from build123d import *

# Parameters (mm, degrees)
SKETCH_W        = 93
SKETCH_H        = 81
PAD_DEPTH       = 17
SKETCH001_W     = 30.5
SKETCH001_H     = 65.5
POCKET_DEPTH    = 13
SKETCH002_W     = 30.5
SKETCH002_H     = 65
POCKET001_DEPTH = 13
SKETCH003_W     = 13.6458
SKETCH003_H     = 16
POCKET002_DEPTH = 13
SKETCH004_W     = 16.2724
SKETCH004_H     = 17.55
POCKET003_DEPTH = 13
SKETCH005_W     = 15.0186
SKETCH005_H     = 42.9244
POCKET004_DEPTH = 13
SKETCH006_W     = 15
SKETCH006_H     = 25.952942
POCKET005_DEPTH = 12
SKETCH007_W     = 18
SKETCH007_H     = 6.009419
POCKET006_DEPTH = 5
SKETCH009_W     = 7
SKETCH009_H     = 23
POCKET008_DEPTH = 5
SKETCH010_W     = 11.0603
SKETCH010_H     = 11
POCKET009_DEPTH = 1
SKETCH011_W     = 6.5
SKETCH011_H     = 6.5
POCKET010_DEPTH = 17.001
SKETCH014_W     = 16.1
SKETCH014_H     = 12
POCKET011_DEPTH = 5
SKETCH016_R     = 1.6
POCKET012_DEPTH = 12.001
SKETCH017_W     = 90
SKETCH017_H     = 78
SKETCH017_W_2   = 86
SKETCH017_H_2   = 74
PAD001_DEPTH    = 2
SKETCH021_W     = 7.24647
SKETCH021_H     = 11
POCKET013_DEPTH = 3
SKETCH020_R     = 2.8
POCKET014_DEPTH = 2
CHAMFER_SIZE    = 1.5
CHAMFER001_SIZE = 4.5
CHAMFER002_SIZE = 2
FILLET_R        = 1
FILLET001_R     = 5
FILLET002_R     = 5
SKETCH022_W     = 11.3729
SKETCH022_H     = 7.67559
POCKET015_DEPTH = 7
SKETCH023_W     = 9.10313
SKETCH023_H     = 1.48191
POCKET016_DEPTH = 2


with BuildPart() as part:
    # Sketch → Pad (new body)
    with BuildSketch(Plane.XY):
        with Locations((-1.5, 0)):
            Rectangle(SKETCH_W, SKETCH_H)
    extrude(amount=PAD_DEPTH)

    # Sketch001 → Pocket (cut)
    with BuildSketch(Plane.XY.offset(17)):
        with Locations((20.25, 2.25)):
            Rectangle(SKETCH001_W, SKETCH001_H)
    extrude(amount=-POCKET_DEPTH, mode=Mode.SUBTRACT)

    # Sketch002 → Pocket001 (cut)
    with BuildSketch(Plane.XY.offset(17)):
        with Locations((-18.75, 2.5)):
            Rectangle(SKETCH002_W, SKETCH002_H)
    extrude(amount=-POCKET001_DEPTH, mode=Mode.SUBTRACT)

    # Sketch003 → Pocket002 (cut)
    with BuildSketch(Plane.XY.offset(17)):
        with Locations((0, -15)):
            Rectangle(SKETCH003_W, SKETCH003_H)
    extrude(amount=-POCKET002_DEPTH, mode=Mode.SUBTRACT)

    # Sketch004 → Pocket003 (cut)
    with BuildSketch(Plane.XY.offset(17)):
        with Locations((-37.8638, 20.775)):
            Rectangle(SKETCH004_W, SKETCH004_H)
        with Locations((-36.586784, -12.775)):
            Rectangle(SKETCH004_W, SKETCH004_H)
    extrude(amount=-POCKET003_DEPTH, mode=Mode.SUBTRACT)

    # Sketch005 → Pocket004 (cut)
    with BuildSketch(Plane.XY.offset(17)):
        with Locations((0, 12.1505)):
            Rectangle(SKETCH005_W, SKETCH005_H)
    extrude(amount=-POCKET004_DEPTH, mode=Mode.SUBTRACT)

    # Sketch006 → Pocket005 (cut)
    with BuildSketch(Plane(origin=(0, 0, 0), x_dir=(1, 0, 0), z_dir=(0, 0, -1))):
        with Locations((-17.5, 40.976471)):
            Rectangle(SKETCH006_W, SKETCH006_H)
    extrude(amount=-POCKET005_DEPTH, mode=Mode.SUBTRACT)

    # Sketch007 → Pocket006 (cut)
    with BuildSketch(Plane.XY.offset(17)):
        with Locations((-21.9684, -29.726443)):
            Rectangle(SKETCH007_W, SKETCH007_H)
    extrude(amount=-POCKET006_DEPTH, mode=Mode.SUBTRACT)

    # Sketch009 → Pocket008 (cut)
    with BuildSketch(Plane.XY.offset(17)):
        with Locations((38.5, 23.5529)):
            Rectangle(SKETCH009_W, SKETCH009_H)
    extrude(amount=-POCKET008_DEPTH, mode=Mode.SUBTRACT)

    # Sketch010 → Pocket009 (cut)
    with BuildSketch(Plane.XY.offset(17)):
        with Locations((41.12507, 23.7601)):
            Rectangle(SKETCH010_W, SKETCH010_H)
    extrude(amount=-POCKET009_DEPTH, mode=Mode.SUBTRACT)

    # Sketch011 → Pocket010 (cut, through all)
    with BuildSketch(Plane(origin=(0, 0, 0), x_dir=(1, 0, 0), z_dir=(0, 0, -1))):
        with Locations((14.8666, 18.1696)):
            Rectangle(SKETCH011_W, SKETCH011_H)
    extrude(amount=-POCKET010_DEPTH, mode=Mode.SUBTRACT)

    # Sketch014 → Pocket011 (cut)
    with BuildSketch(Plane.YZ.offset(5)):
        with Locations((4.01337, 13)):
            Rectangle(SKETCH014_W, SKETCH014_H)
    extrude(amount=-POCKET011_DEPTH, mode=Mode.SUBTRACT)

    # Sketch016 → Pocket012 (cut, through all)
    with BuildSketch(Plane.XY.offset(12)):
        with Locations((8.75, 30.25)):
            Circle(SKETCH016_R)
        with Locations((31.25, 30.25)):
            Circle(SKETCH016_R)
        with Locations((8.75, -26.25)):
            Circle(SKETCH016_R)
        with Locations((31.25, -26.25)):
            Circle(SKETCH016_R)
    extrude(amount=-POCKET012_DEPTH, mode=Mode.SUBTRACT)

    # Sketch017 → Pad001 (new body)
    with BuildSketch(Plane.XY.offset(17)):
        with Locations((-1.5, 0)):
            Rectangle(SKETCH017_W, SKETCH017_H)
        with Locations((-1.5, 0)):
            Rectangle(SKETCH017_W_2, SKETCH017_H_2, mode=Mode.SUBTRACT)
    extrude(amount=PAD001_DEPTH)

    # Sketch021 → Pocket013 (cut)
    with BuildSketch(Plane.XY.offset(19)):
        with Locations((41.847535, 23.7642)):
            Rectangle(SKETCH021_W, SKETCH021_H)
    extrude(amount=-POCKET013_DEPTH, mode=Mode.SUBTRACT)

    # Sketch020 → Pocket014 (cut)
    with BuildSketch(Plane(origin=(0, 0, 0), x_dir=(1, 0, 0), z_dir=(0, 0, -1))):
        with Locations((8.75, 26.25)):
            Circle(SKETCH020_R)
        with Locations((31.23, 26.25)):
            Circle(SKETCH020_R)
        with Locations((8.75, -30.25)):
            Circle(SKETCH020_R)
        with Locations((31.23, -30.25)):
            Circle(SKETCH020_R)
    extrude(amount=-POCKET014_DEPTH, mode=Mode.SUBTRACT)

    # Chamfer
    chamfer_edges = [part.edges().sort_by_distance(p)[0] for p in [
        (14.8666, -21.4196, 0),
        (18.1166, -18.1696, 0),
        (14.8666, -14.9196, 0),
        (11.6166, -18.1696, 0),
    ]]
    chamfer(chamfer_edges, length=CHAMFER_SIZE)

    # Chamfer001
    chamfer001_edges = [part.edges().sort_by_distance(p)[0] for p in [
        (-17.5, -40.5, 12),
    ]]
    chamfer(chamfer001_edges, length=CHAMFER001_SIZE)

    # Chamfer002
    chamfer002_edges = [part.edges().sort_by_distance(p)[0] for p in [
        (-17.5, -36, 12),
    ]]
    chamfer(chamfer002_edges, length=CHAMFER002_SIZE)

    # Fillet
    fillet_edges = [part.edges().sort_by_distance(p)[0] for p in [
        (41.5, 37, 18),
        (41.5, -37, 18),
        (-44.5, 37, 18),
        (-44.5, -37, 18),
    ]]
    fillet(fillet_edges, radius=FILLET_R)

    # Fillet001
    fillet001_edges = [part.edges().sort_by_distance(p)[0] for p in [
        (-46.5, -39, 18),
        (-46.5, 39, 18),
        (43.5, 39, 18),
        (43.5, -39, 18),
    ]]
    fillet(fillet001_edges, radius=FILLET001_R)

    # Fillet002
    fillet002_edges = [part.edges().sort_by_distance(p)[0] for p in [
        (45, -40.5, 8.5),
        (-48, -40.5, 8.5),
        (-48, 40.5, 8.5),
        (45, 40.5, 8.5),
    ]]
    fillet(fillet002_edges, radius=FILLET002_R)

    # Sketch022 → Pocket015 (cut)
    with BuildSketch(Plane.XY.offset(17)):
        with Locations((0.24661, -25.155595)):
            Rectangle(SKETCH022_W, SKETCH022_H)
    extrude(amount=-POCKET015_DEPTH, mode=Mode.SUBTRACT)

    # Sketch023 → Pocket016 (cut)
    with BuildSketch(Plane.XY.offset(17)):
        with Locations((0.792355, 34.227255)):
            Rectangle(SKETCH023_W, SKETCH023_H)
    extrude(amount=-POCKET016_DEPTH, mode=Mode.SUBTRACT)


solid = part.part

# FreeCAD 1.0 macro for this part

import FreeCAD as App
import Part
import Sketcher
from FreeCAD import Vector
Q = App.Units.Quantity


def edges_at(feature, points):
    """Names of the edges that pass closest to the given points."""
    edges = feature.Shape.Edges
    near = lambda p: min(range(len(edges)), key=lambda i: edges[i].distToShape(Part.Vertex(*p))[0])
    return sorted({f"Edge{near(p) + 1}" for p in points})

doc = App.newDocument("Part")
body = doc.addObject("PartDesign::Body", "Body")

sketch1 = doc.addObject("Sketcher::SketchObject", "Sketch")
body.addObject(sketch1)
sketch1.AttachmentSupport = (doc.XY_Plane, [""])
sketch1.MapMode = "FlatFace"
sketch1.addGeometry(Part.LineSegment(Vector(-48, 40, 0), Vector(-48, -40, 0)), False)
sketch1.addGeometry(Part.LineSegment(Vector(-48, -40, 0), Vector(45, -40, 0)), False)
sketch1.addGeometry(Part.LineSegment(Vector(45, -40, 0), Vector(45, 40, 0)), False)
sketch1.addGeometry(Part.LineSegment(Vector(45, 40, 0), Vector(-48, 40, 0)), False)
sketch1.addConstraint(Sketcher.Constraint("Coincident", 0, 2, 1, 1))
sketch1.addConstraint(Sketcher.Constraint("Coincident", 1, 2, 2, 1))
sketch1.addConstraint(Sketcher.Constraint("Coincident", 2, 2, 3, 1))
sketch1.addConstraint(Sketcher.Constraint("Coincident", 3, 2, 0, 1))
sketch1.addConstraint(Sketcher.Constraint("Vertical", 0))
sketch1.addConstraint(Sketcher.Constraint("Horizontal", 1))
sketch1.addConstraint(Sketcher.Constraint("Vertical", 2))
sketch1.addConstraint(Sketcher.Constraint("Horizontal", 3))
sketch1.addConstraint(Sketcher.Constraint("DistanceX", 1, 1, 1, 2, Q("93 mm")))
sketch1.addConstraint(Sketcher.Constraint("DistanceY", 0, 2, 0, 1, Q("81 mm")))
sketch1.addConstraint(Sketcher.Constraint("DistanceX", 0, 2, -1, 1, Q("48 mm")))
sketch1.addConstraint(Sketcher.Constraint("DistanceY", 0, 2, -1, 1, Q("40.5 mm")))
pad1 = doc.addObject("PartDesign::Pad", "Pad")
body.addObject(pad1)
pad1.Profile = sketch1
pad1.Length = 17

sketch2 = doc.addObject("Sketcher::SketchObject", "Sketch001")
body.addObject(sketch2)
sketch2.AttachmentSupport = (doc.XY_Plane, [""])
sketch2.MapMode = "FlatFace"
sketch2.AttachmentOffset = App.Placement(Vector(0, 0, 17), App.Rotation())
sketch2.addGeometry(Part.LineSegment(Vector(5, 35, 0), Vector(5, -30, 0)), False)
sketch2.addGeometry(Part.LineSegment(Vector(5, -30, 0), Vector(36, -30, 0)), False)
sketch2.addGeometry(Part.LineSegment(Vector(36, -30, 0), Vector(36, 35, 0)), False)
sketch2.addGeometry(Part.LineSegment(Vector(36, 35, 0), Vector(5, 35, 0)), False)
sketch2.addConstraint(Sketcher.Constraint("Coincident", 0, 2, 1, 1))
sketch2.addConstraint(Sketcher.Constraint("Coincident", 1, 2, 2, 1))
sketch2.addConstraint(Sketcher.Constraint("Coincident", 2, 2, 3, 1))
sketch2.addConstraint(Sketcher.Constraint("Coincident", 3, 2, 0, 1))
sketch2.addConstraint(Sketcher.Constraint("Vertical", 0))
sketch2.addConstraint(Sketcher.Constraint("Horizontal", 1))
sketch2.addConstraint(Sketcher.Constraint("Vertical", 2))
sketch2.addConstraint(Sketcher.Constraint("Horizontal", 3))
sketch2.addConstraint(Sketcher.Constraint("DistanceX", 1, 1, 1, 2, Q("30.5 mm")))
sketch2.addConstraint(Sketcher.Constraint("DistanceY", 0, 2, 0, 1, Q("65.5 mm")))
sketch2.addConstraint(Sketcher.Constraint("DistanceX", -1, 1, 0, 2, Q("5 mm")))
sketch2.addConstraint(Sketcher.Constraint("DistanceY", -1, 1, 2, 2, Q("35 mm")))
pocket1 = doc.addObject("PartDesign::Pocket", "Pocket")
body.addObject(pocket1)
pocket1.Profile = sketch2
pocket1.Length = 13

sketch3 = doc.addObject("Sketcher::SketchObject", "Sketch002")
body.addObject(sketch3)
sketch3.AttachmentSupport = (doc.XY_Plane, [""])
sketch3.MapMode = "FlatFace"
sketch3.AttachmentOffset = App.Placement(Vector(0, 0, 17), App.Rotation())
sketch3.addGeometry(Part.LineSegment(Vector(-34, 35, 0), Vector(-34, -30, 0)), False)
sketch3.addGeometry(Part.LineSegment(Vector(-34, -30, 0), Vector(-4, -30, 0)), False)
sketch3.addGeometry(Part.LineSegment(Vector(-4, -30, 0), Vector(-4, 35, 0)), False)
sketch3.addGeometry(Part.LineSegment(Vector(-4, 35, 0), Vector(-34, 35, 0)), False)
sketch3.addConstraint(Sketcher.Constraint("Coincident", 0, 2, 1, 1))
sketch3.addConstraint(Sketcher.Constraint("Coincident", 1, 2, 2, 1))
sketch3.addConstraint(Sketcher.Constraint("Coincident", 2, 2, 3, 1))
sketch3.addConstraint(Sketcher.Constraint("Coincident", 3, 2, 0, 1))
sketch3.addConstraint(Sketcher.Constraint("Vertical", 0))
sketch3.addConstraint(Sketcher.Constraint("Horizontal", 1))
sketch3.addConstraint(Sketcher.Constraint("Vertical", 2))
sketch3.addConstraint(Sketcher.Constraint("Horizontal", 3))
sketch3.addConstraint(Sketcher.Constraint("DistanceY", 0, 2, 0, 1, Q("65 mm")))
sketch3.addConstraint(Sketcher.Constraint("DistanceX", 1, 1, 1, 2, Q("30.5 mm")))
sketch3.addConstraint(Sketcher.Constraint("DistanceX", 0, 2, -1, 1, Q("34 mm")))
sketch3.addConstraint(Sketcher.Constraint("DistanceY", 0, 2, -1, 1, Q("30 mm")))
pocket2 = doc.addObject("PartDesign::Pocket", "Pocket001")
body.addObject(pocket2)
pocket2.Profile = sketch3
pocket2.Length = 13

sketch4 = doc.addObject("Sketcher::SketchObject", "Sketch003")
body.addObject(sketch4)
sketch4.AttachmentSupport = (doc.XY_Plane, [""])
sketch4.MapMode = "FlatFace"
sketch4.AttachmentOffset = App.Placement(Vector(0, 0, 17), App.Rotation())
sketch4.addGeometry(Part.LineSegment(Vector(-7, -7, 0), Vector(-7, -23, 0)), False)
sketch4.addGeometry(Part.LineSegment(Vector(-7, -23, 0), Vector(7, -23, 0)), False)
sketch4.addGeometry(Part.LineSegment(Vector(7, -23, 0), Vector(7, -7, 0)), False)
sketch4.addGeometry(Part.LineSegment(Vector(7, -7, 0), Vector(-7, -7, 0)), False)
sketch4.addConstraint(Sketcher.Constraint("Coincident", 0, 2, 1, 1))
sketch4.addConstraint(Sketcher.Constraint("Coincident", 1, 2, 2, 1))
sketch4.addConstraint(Sketcher.Constraint("Coincident", 2, 2, 3, 1))
sketch4.addConstraint(Sketcher.Constraint("Coincident", 3, 2, 0, 1))
sketch4.addConstraint(Sketcher.Constraint("Vertical", 0))
sketch4.addConstraint(Sketcher.Constraint("Horizontal", 1))
sketch4.addConstraint(Sketcher.Constraint("Vertical", 2))
sketch4.addConstraint(Sketcher.Constraint("Horizontal", 3))
sketch4.addConstraint(Sketcher.Constraint("DistanceY", 0, 2, 0, 1, Q("16 mm")))
sketch4.addConstraint(Sketcher.Constraint("DistanceY", 0, 2, -1, 1, Q("23 mm")))
sketch4.addConstraint(Sketcher.Constraint("DistanceX", 1, 1, 1, 2, Q("13.6458 mm")))
sketch4.addConstraint(Sketcher.Constraint("DistanceX", 0, 2, -1, 1, Q("6.8229 mm")))
pocket3 = doc.addObject("PartDesign::Pocket", "Pocket002")
body.addObject(pocket3)
pocket3.Profile = sketch4
pocket3.Length = 13

sketch5 = doc.addObject("Sketcher::SketchObject", "Sketch004")
body.addObject(sketch5)
sketch5.AttachmentSupport = (doc.XY_Plane, [""])
sketch5.MapMode = "FlatFace"
sketch5.AttachmentOffset = App.Placement(Vector(0, 0, 17), App.Rotation())
sketch5.addGeometry(Part.LineSegment(Vector(-46, 30, 0), Vector(-46, 12, 0)), False)
sketch5.addGeometry(Part.LineSegment(Vector(-46, 12, 0), Vector(-30, 12, 0)), False)
sketch5.addGeometry(Part.LineSegment(Vector(-30, 12, 0), Vector(-30, 30, 0)), False)
sketch5.addGeometry(Part.LineSegment(Vector(-30, 30, 0), Vector(-46, 30, 0)), False)
sketch5.addGeometry(Part.LineSegment(Vector(-45, -4, 0), Vector(-45, -22, 0)), False)
sketch5.addGeometry(Part.LineSegment(Vector(-45, -22, 0), Vector(-28, -22, 0)), False)
sketch5.addGeometry(Part.LineSegment(Vector(-28, -22, 0), Vector(-28, -4, 0)), False)
sketch5.addGeometry(Part.LineSegment(Vector(-28, -4, 0), Vector(-45, -4, 0)), False)
sketch5.addConstraint(Sketcher.Constraint("Coincident", 0, 2, 1, 1))
sketch5.addConstraint(Sketcher.Constraint("Coincident", 1, 2, 2, 1))
sketch5.addConstraint(Sketcher.Constraint("Coincident", 2, 2, 3, 1))
sketch5.addConstraint(Sketcher.Constraint("Coincident", 3, 2, 0, 1))
sketch5.addConstraint(Sketcher.Constraint("Coincident", 4, 2, 5, 1))
sketch5.addConstraint(Sketcher.Constraint("Coincident", 5, 2, 6, 1))
sketch5.addConstraint(Sketcher.Constraint("Coincident", 6, 2, 7, 1))
sketch5.addConstraint(Sketcher.Constraint("Coincident", 7, 2, 4, 1))
sketch5.addConstraint(Sketcher.Constraint("Vertical", 0))
sketch5.addConstraint(Sketcher.Constraint("Horizontal", 1))
sketch5.addConstraint(Sketcher.Constraint("Vertical", 2))
sketch5.addConstraint(Sketcher.Constraint("Horizontal", 3))
sketch5.addConstraint(Sketcher.Constraint("Vertical", 4))
sketch5.addConstraint(Sketcher.Constraint("Horizontal", 5))
sketch5.addConstraint(Sketcher.Constraint("Vertical", 6))
sketch5.addConstraint(Sketcher.Constraint("Horizontal", 7))
sketch5.addConstraint(Sketcher.Constraint("Equal", 3, 5))
sketch5.addConstraint(Sketcher.Constraint("Equal", 2, 4))
sketch5.addConstraint(Sketcher.Constraint("DistanceX", 0, 2, -1, 1, Q("46 mm")))
sketch5.addConstraint(Sketcher.Constraint("DistanceY", -1, 1, 0, 2, Q("12 mm")))
sketch5.addConstraint(Sketcher.Constraint("DistanceY", 6, 2, -1, 1, Q("4 mm")))
sketch5.addConstraint(Sketcher.Constraint("DistanceY", 0, 2, 0, 1, Q("17.55 mm")))
sketch5.addConstraint(Sketcher.Constraint("DistanceX", 1, 1, 1, 2, Q("16.2724 mm")))
sketch5.addConstraint(Sketcher.Constraint("DistanceX", 4, 2, -1, 1, Q("44.722984 mm")))
pocket4 = doc.addObject("PartDesign::Pocket", "Pocket003")
body.addObject(pocket4)
pocket4.Profile = sketch5
pocket4.Length = 13

sketch6 = doc.addObject("Sketcher::SketchObject", "Sketch005")
body.addObject(sketch6)
sketch6.AttachmentSupport = (doc.XY_Plane, [""])
sketch6.MapMode = "FlatFace"
sketch6.AttachmentOffset = App.Placement(Vector(0, 0, 17), App.Rotation())
sketch6.addGeometry(Part.LineSegment(Vector(-8, 34, 0), Vector(-8, -9, 0)), False)
sketch6.addGeometry(Part.LineSegment(Vector(-8, -9, 0), Vector(8, -9, 0)), False)
sketch6.addGeometry(Part.LineSegment(Vector(8, -9, 0), Vector(8, 34, 0)), False)
sketch6.addGeometry(Part.LineSegment(Vector(8, 34, 0), Vector(-8, 34, 0)), False)
sketch6.addConstraint(Sketcher.Constraint("Coincident", 0, 2, 1, 1))
sketch6.addConstraint(Sketcher.Constraint("Coincident", 1, 2, 2, 1))
sketch6.addConstraint(Sketcher.Constraint("Coincident", 2, 2, 3, 1))
sketch6.addConstraint(Sketcher.Constraint("Coincident", 3, 2, 0, 1))
sketch6.addConstraint(Sketcher.Constraint("Vertical", 0))
sketch6.addConstraint(Sketcher.Constraint("Horizontal", 1))
sketch6.addConstraint(Sketcher.Constraint("Vertical", 2))
sketch6.addConstraint(Sketcher.Constraint("Horizontal", 3))
sketch6.addConstraint(Sketcher.Constraint("DistanceX", 1, 1, 1, 2, Q("15.0186 mm")))
sketch6.addConstraint(Sketcher.Constraint("DistanceY", 0, 2, 0, 1, Q("42.9244 mm")))
sketch6.addConstraint(Sketcher.Constraint("DistanceX", 0, 2, -1, 1, Q("7.5093 mm")))
sketch6.addConstraint(Sketcher.Constraint("DistanceY", 0, 2, -1, 1, Q("9.3117 mm")))
pocket5 = doc.addObject("PartDesign::Pocket", "Pocket004")
body.addObject(pocket5)
pocket5.Profile = sketch6
pocket5.Length = 13

sketch7 = doc.addObject("Sketcher::SketchObject", "Sketch006")
body.addObject(sketch7)
sketch7.AttachmentSupport = (doc.XY_Plane, [""])
sketch7.MapMode = "FlatFace"
sketch7.addGeometry(Part.LineSegment(Vector(-25, -54, 0), Vector(-25, -28, 0)), False)
sketch7.addGeometry(Part.LineSegment(Vector(-25, -28, 0), Vector(-10, -28, 0)), False)
sketch7.addGeometry(Part.LineSegment(Vector(-10, -28, 0), Vector(-10, -54, 0)), False)
sketch7.addGeometry(Part.LineSegment(Vector(-10, -54, 0), Vector(-25, -54, 0)), False)
sketch7.addConstraint(Sketcher.Constraint("Coincident", 0, 2, 1, 1))
sketch7.addConstraint(Sketcher.Constraint("Coincident", 1, 2, 2, 1))
sketch7.addConstraint(Sketcher.Constraint("Coincident", 2, 2, 3, 1))
sketch7.addConstraint(Sketcher.Constraint("Coincident", 3, 2, 0, 1))
sketch7.addConstraint(Sketcher.Constraint("Vertical", 0))
sketch7.addConstraint(Sketcher.Constraint("Horizontal", 1))
sketch7.addConstraint(Sketcher.Constraint("Vertical", 2))
sketch7.addConstraint(Sketcher.Constraint("Horizontal", 3))
sketch7.addConstraint(Sketcher.Constraint("DistanceX", 1, 1, 1, 2, Q("15 mm")))
sketch7.addConstraint(Sketcher.Constraint("DistanceX", 0, 2, -1, 1, Q("25 mm")))
sketch7.addConstraint(Sketcher.Constraint("DistanceY", 0, 2, -1, 1, Q("28 mm")))
sketch7.addConstraint(Sketcher.Constraint("DistanceY", 0, 1, 0, 2, Q("25.952942 mm")))
pocket6 = doc.addObject("PartDesign::Pocket", "Pocket005")
body.addObject(pocket6)
pocket6.Profile = sketch7
pocket6.Length = 12
pocket6.Reversed = True

sketch8 = doc.addObject("Sketcher::SketchObject", "Sketch007")
body.addObject(sketch8)
sketch8.AttachmentSupport = (doc.XY_Plane, [""])
sketch8.MapMode = "FlatFace"
sketch8.AttachmentOffset = App.Placement(Vector(0, 0, 17), App.Rotation())
sketch8.addGeometry(Part.LineSegment(Vector(-31, -27, 0), Vector(-31, -33, 0)), False)
sketch8.addGeometry(Part.LineSegment(Vector(-31, -33, 0), Vector(-13, -33, 0)), False)
sketch8.addGeometry(Part.LineSegment(Vector(-13, -33, 0), Vector(-13, -27, 0)), False)
sketch8.addGeometry(Part.LineSegment(Vector(-13, -27, 0), Vector(-31, -27, 0)), False)
sketch8.addConstraint(Sketcher.Constraint("Coincident", 0, 2, 1, 1))
sketch8.addConstraint(Sketcher.Constraint("Coincident", 1, 2, 2, 1))
sketch8.addConstraint(Sketcher.Constraint("Coincident", 2, 2, 3, 1))
sketch8.addConstraint(Sketcher.Constraint("Coincident", 3, 2, 0, 1))
sketch8.addConstraint(Sketcher.Constraint("Vertical", 0))
sketch8.addConstraint(Sketcher.Constraint("Horizontal", 1))
sketch8.addConstraint(Sketcher.Constraint("Vertical", 2))
sketch8.addConstraint(Sketcher.Constraint("Horizontal", 3))
sketch8.addConstraint(Sketcher.Constraint("DistanceX", 1, 1, 1, 2, Q("18 mm")))
sketch8.addConstraint(Sketcher.Constraint("DistanceY", 0, 2, 0, 1, Q("6.009419 mm")))
sketch8.addConstraint(Sketcher.Constraint("DistanceX", 0, 2, -1, 1, Q("30.9684 mm")))
sketch8.addConstraint(Sketcher.Constraint("DistanceY", 0, 2, -1, 1, Q("32.731153 mm")))
pocket7 = doc.addObject("PartDesign::Pocket", "Pocket006")
body.addObject(pocket7)
pocket7.Profile = sketch8
pocket7.Length = 5

sketch9 = doc.addObject("Sketcher::SketchObject", "Sketch008")
body.addObject(sketch9)
sketch9.AttachmentSupport = (doc.XY_Plane, [""])
sketch9.MapMode = "FlatFace"
sketch9.AttachmentOffset = App.Placement(Vector(0, 0, 17), App.Rotation())
sketch9.addGeometry(Part.LineSegment(Vector(35, 35, 0), Vector(35, 12, 0)), False)
sketch9.addGeometry(Part.LineSegment(Vector(35, 12, 0), Vector(42, 12, 0)), False)
sketch9.addGeometry(Part.LineSegment(Vector(42, 12, 0), Vector(42, 35, 0)), False)
sketch9.addGeometry(Part.LineSegment(Vector(42, 35, 0), Vector(35, 35, 0)), False)
sketch9.addConstraint(Sketcher.Constraint("Coincident", 0, 2, 1, 1))
sketch9.addConstraint(Sketcher.Constraint("Coincident", 1, 2, 2, 1))
sketch9.addConstraint(Sketcher.Constraint("Coincident", 2, 2, 3, 1))
sketch9.addConstraint(Sketcher.Constraint("Coincident", 3, 2, 0, 1))
sketch9.addConstraint(Sketcher.Constraint("Vertical", 0))
sketch9.addConstraint(Sketcher.Constraint("Horizontal", 1))
sketch9.addConstraint(Sketcher.Constraint("Vertical", 2))
sketch9.addConstraint(Sketcher.Constraint("Horizontal", 3))
sketch9.addConstraint(Sketcher.Constraint("DistanceX", 1, 1, 1, 2, Q("7 mm")))
sketch9.addConstraint(Sketcher.Constraint("DistanceY", 0, 2, 0, 1, Q("23 mm")))
sketch9.addConstraint(Sketcher.Constraint("DistanceX", -1, 1, 0, 2, Q("35 mm")))
sketch9.addConstraint(Sketcher.Constraint("DistanceY", -1, 1, 0, 2, Q("12.0529 mm")))
pocket8 = doc.addObject("PartDesign::Pocket", "Pocket007")
body.addObject(pocket8)
pocket8.Profile = sketch9
pocket8.Length = 5

sketch10 = doc.addObject("Sketcher::SketchObject", "Sketch009")
body.addObject(sketch10)
sketch10.AttachmentSupport = (doc.XY_Plane, [""])
sketch10.MapMode = "FlatFace"
sketch10.AttachmentOffset = App.Placement(Vector(0, 0, 17), App.Rotation())
sketch10.addGeometry(Part.LineSegment(Vector(36, 29, 0), Vector(36, 18, 0)), False)
sketch10.addGeometry(Part.LineSegment(Vector(36, 18, 0), Vector(47, 18, 0)), False)
sketch10.addGeometry(Part.LineSegment(Vector(47, 18, 0), Vector(47, 29, 0)), False)
sketch10.addGeometry(Part.LineSegment(Vector(47, 29, 0), Vector(36, 29, 0)), False)
sketch10.addConstraint(Sketcher.Constraint("Coincident", 0, 2, 1, 1))
sketch10.addConstraint(Sketcher.Constraint("Coincident", 1, 2, 2, 1))
sketch10.addConstraint(Sketcher.Constraint("Coincident", 2, 2, 3, 1))
sketch10.addConstraint(Sketcher.Constraint("Coincident", 3, 2, 0, 1))
sketch10.addConstraint(Sketcher.Constraint("Vertical", 0))
sketch10.addConstraint(Sketcher.Constraint("Horizontal", 1))
sketch10.addConstraint(Sketcher.Constraint("Vertical", 2))
sketch10.addConstraint(Sketcher.Constraint("Horizontal", 3))
sketch10.addConstraint(Sketcher.Constraint("DistanceY", 0, 2, 0, 1, Q("11 mm")))
sketch10.addConstraint(Sketcher.Constraint("DistanceX", 1, 1, 1, 2, Q("11.0603 mm")))
sketch10.addConstraint(Sketcher.Constraint("DistanceY", -1, 1, 0, 2, Q("18.2601 mm")))
sketch10.addConstraint(Sketcher.Constraint("DistanceX", -1, 1, 0, 2, Q("35.59492 mm")))
pocket9 = doc.addObject("PartDesign::Pocket", "Pocket008")
body.addObject(pocket9)
pocket9.Profile = sketch10
pocket9.Length = 1

sketch11 = doc.addObject("Sketcher::SketchObject", "Sketch010")
body.addObject(sketch11)
sketch11.AttachmentSupport = (doc.XY_Plane, [""])
sketch11.MapMode = "FlatFace"
sketch11.addGeometry(Part.LineSegment(Vector(12, -21, 0), Vector(12, -15, 0)), False)
sketch11.addGeometry(Part.LineSegment(Vector(12, -15, 0), Vector(18, -15, 0)), False)
sketch11.addGeometry(Part.LineSegment(Vector(18, -15, 0), Vector(18, -21, 0)), False)
sketch11.addGeometry(Part.LineSegment(Vector(18, -21, 0), Vector(12, -21, 0)), False)
sketch11.addConstraint(Sketcher.Constraint("Coincident", 0, 2, 1, 1))
sketch11.addConstraint(Sketcher.Constraint("Coincident", 1, 2, 2, 1))
sketch11.addConstraint(Sketcher.Constraint("Coincident", 2, 2, 3, 1))
sketch11.addConstraint(Sketcher.Constraint("Coincident", 3, 2, 0, 1))
sketch11.addConstraint(Sketcher.Constraint("Vertical", 0))
sketch11.addConstraint(Sketcher.Constraint("Horizontal", 1))
sketch11.addConstraint(Sketcher.Constraint("Vertical", 2))
sketch11.addConstraint(Sketcher.Constraint("Horizontal", 3))
sketch11.addConstraint(Sketcher.Constraint("Equal", 3, 0))
sketch11.addConstraint(Sketcher.Constraint("DistanceX", 1, 1, 1, 2, Q("6.5 mm")))
sketch11.addConstraint(Sketcher.Constraint("DistanceX", -1, 1, 0, 2, Q("11.6166 mm")))
sketch11.addConstraint(Sketcher.Constraint("DistanceY", 0, 2, -1, 1, Q("14.9196 mm")))
pocket10 = doc.addObject("PartDesign::Pocket", "Pocket009")
body.addObject(pocket10)
pocket10.Profile = sketch11
pocket10.Type = "ThroughAll"
pocket10.Reversed = True

sketch12 = doc.addObject("Sketcher::SketchObject", "Sketch011")
body.addObject(sketch12)
sketch12.AttachmentSupport = (doc.YZ_Plane, [""])
sketch12.MapMode = "FlatFace"
sketch12.AttachmentOffset = App.Placement(Vector(0, 0, 5), App.Rotation())
sketch12.addGeometry(Part.LineSegment(Vector(-4, 19, 0), Vector(-4, 7, 0)), False)
sketch12.addGeometry(Part.LineSegment(Vector(-4, 7, 0), Vector(12, 7, 0)), False)
sketch12.addGeometry(Part.LineSegment(Vector(12, 7, 0), Vector(12, 19, 0)), False)
sketch12.addGeometry(Part.LineSegment(Vector(12, 19, 0), Vector(-4, 19, 0)), False)
sketch12.addConstraint(Sketcher.Constraint("Coincident", 0, 2, 1, 1))
sketch12.addConstraint(Sketcher.Constraint("Coincident", 1, 2, 2, 1))
sketch12.addConstraint(Sketcher.Constraint("Coincident", 2, 2, 3, 1))
sketch12.addConstraint(Sketcher.Constraint("Coincident", 3, 2, 0, 1))
sketch12.addConstraint(Sketcher.Constraint("Vertical", 0))
sketch12.addConstraint(Sketcher.Constraint("Horizontal", 1))
sketch12.addConstraint(Sketcher.Constraint("Vertical", 2))
sketch12.addConstraint(Sketcher.Constraint("Horizontal", 3))
sketch12.addConstraint(Sketcher.Constraint("DistanceY", 0, 2, 0, 1, Q("12 mm")))
sketch12.addConstraint(Sketcher.Constraint("DistanceX", 1, 1, 1, 2, Q("16.1 mm")))
sketch12.addConstraint(Sketcher.Constraint("DistanceY", -1, 1, 0, 2, Q("7 mm")))
sketch12.addConstraint(Sketcher.Constraint("DistanceX", 0, 2, -1, 1, Q("4.03663 mm")))
pocket11 = doc.addObject("PartDesign::Pocket", "Pocket010")
body.addObject(pocket11)
pocket11.Profile = sketch12
pocket11.Length = 5

sketch13 = doc.addObject("Sketcher::SketchObject", "Sketch012")
body.addObject(sketch13)
sketch13.AttachmentSupport = (doc.XY_Plane, [""])
sketch13.MapMode = "FlatFace"
sketch13.AttachmentOffset = App.Placement(Vector(0, 0, 12), App.Rotation())
sketch13.addGeometry(Part.Circle(Vector(8.8, 30.2, 0), Vector(0, 0, 1), 1.6), False)
sketch13.addGeometry(Part.Circle(Vector(31.2, 30.2, 0), Vector(0, 0, 1), 1.6), False)
sketch13.addGeometry(Part.Circle(Vector(8.8, -26.2, 0), Vector(0, 0, 1), 1.6), False)
sketch13.addGeometry(Part.Circle(Vector(31.2, -26.2, 0), Vector(0, 0, 1), 1.6), False)
sketch13.addConstraint(Sketcher.Constraint("Equal", 0, 1))
sketch13.addConstraint(Sketcher.Constraint("Equal", 1, 2))
sketch13.addConstraint(Sketcher.Constraint("Equal", 2, 3))
sketch13.addConstraint(Sketcher.Constraint("Horizontal", 0, 3, 1, 3))
sketch13.addConstraint(Sketcher.Constraint("Horizontal", 2, 3, 3, 3))
sketch13.addConstraint(Sketcher.Constraint("Vertical", 0, 3, 2, 3))
sketch13.addConstraint(Sketcher.Constraint("Vertical", 1, 3, 3, 3))
sketch13.addConstraint(Sketcher.Constraint("Diameter", 0, Q("3.2 mm")))
sketch13.addConstraint(Sketcher.Constraint("DistanceX", 0, 3, 1, 3, Q("22.5 mm")))
sketch13.addConstraint(Sketcher.Constraint("DistanceY", 2, 3, 0, 3, Q("56.5 mm")))
sketch13.addConstraint(Sketcher.Constraint("DistanceX", -1, 1, 0, 3, Q("8.75 mm")))
sketch13.addConstraint(Sketcher.Constraint("DistanceY", -1, 1, 0, 3, Q("30.25 mm")))
pocket12 = doc.addObject("PartDesign::Pocket", "Pocket011")
body.addObject(pocket12)
pocket12.Profile = sketch13
pocket12.Type = "ThroughAll"

sketch14 = doc.addObject("Sketcher::SketchObject", "Sketch013")
body.addObject(sketch14)
sketch14.AttachmentSupport = (doc.XY_Plane, [""])
sketch14.MapMode = "FlatFace"
sketch14.AttachmentOffset = App.Placement(Vector(0, 0, 17), App.Rotation())
sketch14.addGeometry(Part.LineSegment(Vector(-46, 39, 0), Vector(-46, -39, 0)), False)
sketch14.addGeometry(Part.LineSegment(Vector(-46, -39, 0), Vector(44, -39, 0)), False)
sketch14.addGeometry(Part.LineSegment(Vector(44, -39, 0), Vector(44, 39, 0)), False)
sketch14.addGeometry(Part.LineSegment(Vector(44, 39, 0), Vector(-46, 39, 0)), False)
sketch14.addGeometry(Part.LineSegment(Vector(42, -37, 0), Vector(-44, -37, 0)), False)
sketch14.addGeometry(Part.LineSegment(Vector(-44, -37, 0), Vector(-44, 37, 0)), False)
sketch14.addGeometry(Part.LineSegment(Vector(-44, 37, 0), Vector(42, 37, 0)), False)
sketch14.addGeometry(Part.LineSegment(Vector(42, 37, 0), Vector(42, -37, 0)), False)
sketch14.addConstraint(Sketcher.Constraint("Coincident", 0, 2, 1, 1))
sketch14.addConstraint(Sketcher.Constraint("Coincident", 1, 2, 2, 1))
sketch14.addConstraint(Sketcher.Constraint("Coincident", 2, 2, 3, 1))
sketch14.addConstraint(Sketcher.Constraint("Coincident", 3, 2, 0, 1))
sketch14.addConstraint(Sketcher.Constraint("Coincident", 4, 2, 5, 1))
sketch14.addConstraint(Sketcher.Constraint("Coincident", 5, 2, 6, 1))
sketch14.addConstraint(Sketcher.Constraint("Coincident", 6, 2, 7, 1))
sketch14.addConstraint(Sketcher.Constraint("Coincident", 7, 2, 4, 1))
sketch14.addConstraint(Sketcher.Constraint("Vertical", 0))
sketch14.addConstraint(Sketcher.Constraint("Horizontal", 1))
sketch14.addConstraint(Sketcher.Constraint("Vertical", 2))
sketch14.addConstraint(Sketcher.Constraint("Horizontal", 3))
sketch14.addConstraint(Sketcher.Constraint("Horizontal", 4))
sketch14.addConstraint(Sketcher.Constraint("Vertical", 5))
sketch14.addConstraint(Sketcher.Constraint("Horizontal", 6))
sketch14.addConstraint(Sketcher.Constraint("Vertical", 7))
sketch14.addConstraint(Sketcher.Constraint("DistanceX", 1, 1, 1, 2, Q("90 mm")))
sketch14.addConstraint(Sketcher.Constraint("DistanceX", 4, 2, 4, 1, Q("86 mm")))
sketch14.addConstraint(Sketcher.Constraint("DistanceY", 0, 2, 0, 1, Q("78 mm")))
sketch14.addConstraint(Sketcher.Constraint("DistanceY", 5, 1, 5, 2, Q("74 mm")))
sketch14.addConstraint(Sketcher.Constraint("DistanceY", 0, 2, -1, 1, Q("39 mm")))
sketch14.addConstraint(Sketcher.Constraint("DistanceY", 4, 2, -1, 1, Q("37 mm")))
sketch14.addConstraint(Sketcher.Constraint("DistanceX", 0, 2, 4, 2, Q("2 mm")))
sketch14.addConstraint(Sketcher.Constraint("DistanceX", 0, 2, -1, 1, Q("46.5 mm")))
pad2 = doc.addObject("PartDesign::Pad", "Pad001")
body.addObject(pad2)
pad2.Profile = sketch14
pad2.Length = 2

sketch15 = doc.addObject("Sketcher::SketchObject", "Sketch014")
body.addObject(sketch15)
sketch15.AttachmentSupport = (doc.XY_Plane, [""])
sketch15.MapMode = "FlatFace"
sketch15.AttachmentOffset = App.Placement(Vector(0, 0, 19), App.Rotation())
sketch15.addGeometry(Part.LineSegment(Vector(38, 29, 0), Vector(38, 18, 0)), False)
sketch15.addGeometry(Part.LineSegment(Vector(38, 18, 0), Vector(45, 18, 0)), False)
sketch15.addGeometry(Part.LineSegment(Vector(45, 18, 0), Vector(45, 29, 0)), False)
sketch15.addGeometry(Part.LineSegment(Vector(45, 29, 0), Vector(38, 29, 0)), False)
sketch15.addConstraint(Sketcher.Constraint("Coincident", 0, 2, 1, 1))
sketch15.addConstraint(Sketcher.Constraint("Coincident", 1, 2, 2, 1))
sketch15.addConstraint(Sketcher.Constraint("Coincident", 2, 2, 3, 1))
sketch15.addConstraint(Sketcher.Constraint("Coincident", 3, 2, 0, 1))
sketch15.addConstraint(Sketcher.Constraint("Vertical", 0))
sketch15.addConstraint(Sketcher.Constraint("Horizontal", 1))
sketch15.addConstraint(Sketcher.Constraint("Vertical", 2))
sketch15.addConstraint(Sketcher.Constraint("Horizontal", 3))
sketch15.addConstraint(Sketcher.Constraint("DistanceY", 0, 2, 0, 1, Q("11 mm")))
sketch15.addConstraint(Sketcher.Constraint("DistanceX", 1, 1, 1, 2, Q("7.24647 mm")))
sketch15.addConstraint(Sketcher.Constraint("DistanceX", -1, 1, 0, 2, Q("38.2243 mm")))
sketch15.addConstraint(Sketcher.Constraint("DistanceY", -1, 1, 0, 2, Q("18.2642 mm")))
pocket13 = doc.addObject("PartDesign::Pocket", "Pocket012")
body.addObject(pocket13)
pocket13.Profile = sketch15
pocket13.Length = 3

sketch16 = doc.addObject("Sketcher::SketchObject", "Sketch015")
body.addObject(sketch16)
sketch16.AttachmentSupport = (doc.XY_Plane, [""])
sketch16.MapMode = "FlatFace"
sketch16.addGeometry(Part.Circle(Vector(8.8, -26.2, 0), Vector(0, 0, 1), 2.8), False)
sketch16.addGeometry(Part.Circle(Vector(31.2, -26.2, 0), Vector(0, 0, 1), 2.8), False)
sketch16.addGeometry(Part.Circle(Vector(8.8, 30.2, 0), Vector(0, 0, 1), 2.8), False)
sketch16.addGeometry(Part.Circle(Vector(31.2, 30.2, 0), Vector(0, 0, 1), 2.8), False)
sketch16.addConstraint(Sketcher.Constraint("Equal", 0, 1))
sketch16.addConstraint(Sketcher.Constraint("Equal", 1, 2))
sketch16.addConstraint(Sketcher.Constraint("Equal", 2, 3))
sketch16.addConstraint(Sketcher.Constraint("Horizontal", 0, 3, 1, 3))
sketch16.addConstraint(Sketcher.Constraint("Horizontal", 2, 3, 3, 3))
sketch16.addConstraint(Sketcher.Constraint("Vertical", 0, 3, 2, 3))
sketch16.addConstraint(Sketcher.Constraint("Vertical", 1, 3, 3, 3))
sketch16.addConstraint(Sketcher.Constraint("Diameter", 0, Q("5.6 mm")))
sketch16.addConstraint(Sketcher.Constraint("DistanceY", 0, 3, 2, 3, Q("56.5 mm")))
sketch16.addConstraint(Sketcher.Constraint("DistanceX", -1, 1, 0, 3, Q("8.75 mm")))
sketch16.addConstraint(Sketcher.Constraint("DistanceY", 0, 3, -1, 1, Q("26.25 mm")))
sketch16.addConstraint(Sketcher.Constraint("DistanceX", -1, 1, 1, 3, Q("31.23 mm")))
pocket14 = doc.addObject("PartDesign::Pocket", "Pocket013")
body.addObject(pocket14)
pocket14.Profile = sketch16
pocket14.Length = 2
pocket14.Reversed = True
doc.recompute()

chamfer = doc.addObject("PartDesign::Chamfer", "Chamfer")
body.addObject(chamfer)
chamfer.Base = (pocket14, edges_at(pocket14, [
    (14.867, -21.42, 0),
    (18.117, -18.17, 0),
    (14.867, -14.92, 0),
    (11.617, -18.17, 0),
]))
chamfer.Size = 1.5
doc.recompute()

chamfer2 = doc.addObject("PartDesign::Chamfer", "Chamfer001")
body.addObject(chamfer2)
chamfer2.Base = (chamfer, edges_at(chamfer, [(-17.5, -40.5, 12)]))
chamfer2.Size = 4.5
doc.recompute()

chamfer3 = doc.addObject("PartDesign::Chamfer", "Chamfer002")
body.addObject(chamfer3)
chamfer3.Base = (chamfer2, edges_at(chamfer2, [(-17.5, -36, 12)]))
chamfer3.Size = 2
doc.recompute()

fillet = doc.addObject("PartDesign::Fillet", "Fillet")
body.addObject(fillet)
fillet.Base = (chamfer3, edges_at(chamfer3, [
    (41.5, 37, 18),
    (41.5, -37, 18),
    (-44.5, 37, 18),
    (-44.5, -37, 18),
]))
fillet.Radius = 1
doc.recompute()

fillet2 = doc.addObject("PartDesign::Fillet", "Fillet001")
body.addObject(fillet2)
fillet2.Base = (fillet, edges_at(fillet, [
    (-46.5, -39, 18),
    (-46.5, 39, 18),
    (43.5, 39, 18),
    (43.5, -39, 18),
]))
fillet2.Radius = 5
doc.recompute()

fillet3 = doc.addObject("PartDesign::Fillet", "Fillet002")
body.addObject(fillet3)
fillet3.Base = (fillet2, edges_at(fillet2, [
    (45, -40.5, 8.5),
    (-48, -40.5, 8.5),
    (-48, 40.5, 8.5),
    (45, 40.5, 8.5),
]))
fillet3.Radius = 5

sketch17 = doc.addObject("Sketcher::SketchObject", "Sketch016")
body.addObject(sketch17)
sketch17.AttachmentSupport = (doc.XY_Plane, [""])
sketch17.MapMode = "FlatFace"
sketch17.AttachmentOffset = App.Placement(Vector(0, 0, 17), App.Rotation())
sketch17.addGeometry(Part.LineSegment(Vector(-5, -21, 0), Vector(-5, -29, 0)), False)
sketch17.addGeometry(Part.LineSegment(Vector(-5, -29, 0), Vector(6, -29, 0)), False)
sketch17.addGeometry(Part.LineSegment(Vector(6, -29, 0), Vector(6, -21, 0)), False)
sketch17.addGeometry(Part.LineSegment(Vector(6, -21, 0), Vector(-5, -21, 0)), False)
sketch17.addConstraint(Sketcher.Constraint("Coincident", 0, 2, 1, 1))
sketch17.addConstraint(Sketcher.Constraint("Coincident", 1, 2, 2, 1))
sketch17.addConstraint(Sketcher.Constraint("Coincident", 2, 2, 3, 1))
sketch17.addConstraint(Sketcher.Constraint("Coincident", 3, 2, 0, 1))
sketch17.addConstraint(Sketcher.Constraint("Vertical", 0))
sketch17.addConstraint(Sketcher.Constraint("Horizontal", 1))
sketch17.addConstraint(Sketcher.Constraint("Vertical", 2))
sketch17.addConstraint(Sketcher.Constraint("Horizontal", 3))
sketch17.addConstraint(Sketcher.Constraint("DistanceX", 1, 1, 1, 2, Q("11.3729 mm")))
sketch17.addConstraint(Sketcher.Constraint("DistanceY", 0, 2, 0, 1, Q("7.67559 mm")))
sketch17.addConstraint(Sketcher.Constraint("DistanceY", 2, 2, -1, 1, Q("21.3178 mm")))
sketch17.addConstraint(Sketcher.Constraint("DistanceX", 0, 2, -1, 1, Q("5.43984 mm")))
pocket15 = doc.addObject("PartDesign::Pocket", "Pocket014")
body.addObject(pocket15)
pocket15.Profile = sketch17
pocket15.Length = 7

sketch18 = doc.addObject("Sketcher::SketchObject", "Sketch017")
body.addObject(sketch18)
sketch18.AttachmentSupport = (doc.XY_Plane, [""])
sketch18.MapMode = "FlatFace"
sketch18.AttachmentOffset = App.Placement(Vector(0, 0, 17), App.Rotation())
sketch18.addGeometry(Part.LineSegment(Vector(-3.8, 35, 0), Vector(-3.8, 33.5, 0)), False)
sketch18.addGeometry(Part.LineSegment(Vector(-3.8, 33.5, 0), Vector(5.3, 33.5, 0)), False)
sketch18.addGeometry(Part.LineSegment(Vector(5.3, 33.5, 0), Vector(5.3, 35, 0)), False)
sketch18.addGeometry(Part.LineSegment(Vector(5.3, 35, 0), Vector(-3.8, 35, 0)), False)
sketch18.addConstraint(Sketcher.Constraint("Coincident", 0, 2, 1, 1))
sketch18.addConstraint(Sketcher.Constraint("Coincident", 1, 2, 2, 1))
sketch18.addConstraint(Sketcher.Constraint("Coincident", 2, 2, 3, 1))
sketch18.addConstraint(Sketcher.Constraint("Coincident", 3, 2, 0, 1))
sketch18.addConstraint(Sketcher.Constraint("Vertical", 0))
sketch18.addConstraint(Sketcher.Constraint("Horizontal", 1))
sketch18.addConstraint(Sketcher.Constraint("Vertical", 2))
sketch18.addConstraint(Sketcher.Constraint("Horizontal", 3))
sketch18.addConstraint(Sketcher.Constraint("DistanceX", 1, 1, 1, 2, Q("9.10313 mm")))
sketch18.addConstraint(Sketcher.Constraint("DistanceY", 0, 2, 0, 1, Q("1.48191 mm")))
sketch18.addConstraint(Sketcher.Constraint("DistanceY", -1, 1, 0, 2, Q("33.4863 mm")))
sketch18.addConstraint(Sketcher.Constraint("DistanceX", 0, 2, -1, 1, Q("3.75921 mm")))
pocket16 = doc.addObject("PartDesign::Pocket", "Pocket015")
body.addObject(pocket16)
pocket16.Profile = sketch18
pocket16.Length = 2

doc.recompute()
